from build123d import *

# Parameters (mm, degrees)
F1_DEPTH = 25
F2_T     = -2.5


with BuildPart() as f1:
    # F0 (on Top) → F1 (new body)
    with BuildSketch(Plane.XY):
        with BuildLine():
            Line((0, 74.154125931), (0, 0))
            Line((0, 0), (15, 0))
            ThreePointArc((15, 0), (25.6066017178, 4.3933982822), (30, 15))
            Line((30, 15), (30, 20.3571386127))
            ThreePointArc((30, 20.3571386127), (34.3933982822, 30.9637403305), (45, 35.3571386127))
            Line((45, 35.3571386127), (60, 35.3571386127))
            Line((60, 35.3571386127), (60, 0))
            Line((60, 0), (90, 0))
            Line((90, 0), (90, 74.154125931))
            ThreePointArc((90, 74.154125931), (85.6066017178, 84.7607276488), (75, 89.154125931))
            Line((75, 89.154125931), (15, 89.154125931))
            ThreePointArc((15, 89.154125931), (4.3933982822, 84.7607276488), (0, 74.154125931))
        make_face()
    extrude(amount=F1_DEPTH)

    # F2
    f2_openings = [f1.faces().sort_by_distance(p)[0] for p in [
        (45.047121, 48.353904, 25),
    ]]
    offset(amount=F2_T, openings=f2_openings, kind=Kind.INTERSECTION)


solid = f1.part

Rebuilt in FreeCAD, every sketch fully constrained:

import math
import FreeCAD as App
import Part
import Sketcher
from FreeCAD import Vector
Q = App.Units.Quantity


def faces_at(feature, points):
    """Names of the faces that lie closest to the given points."""
    faces = feature.Shape.Faces
    near = lambda p: min(range(len(faces)), key=lambda i: faces[i].distToShape(Part.Vertex(*p))[0])
    return sorted({f"Face{near(p) + 1}" for p in points})

doc = App.newDocument("Part")
body = doc.addObject("PartDesign::Body", "Body")

# Sketch on XY plane
sketch1 = body.newObject("Sketcher::SketchObject", "Sketch")
sketch1.AttachmentSupport = (doc.getObject("XY_Plane"), [""])
sketch1.MapMode = "FlatFace"
sketch1.addGeometry(Part.LineSegment(Vector(0, 74, 0), Vector(0, 0, 0)), False)
sketch1.addGeometry(Part.LineSegment(Vector(0, 0, 0), Vector(15, 0, 0)), False)
sketch1.addGeometry(Part.ArcOfCircle(Part.Circle(Vector(15, 15, 0), Vector(0, 0, 1), 15), math.radians(-90), math.radians(0)), False)
sketch1.addGeometry(Part.LineSegment(Vector(30, 15, 0), Vector(30, 20, 0)), False)
sketch1.addGeometry(Part.ArcOfCircle(Part.Circle(Vector(45, 20, 0), Vector(0, 0, 1), 15), math.radians(90), math.radians(180)), False)
sketch1.addGeometry(Part.LineSegment(Vector(45, 35, 0), Vector(60, 35, 0)), False)
sketch1.addGeometry(Part.LineSegment(Vector(60, 35, 0), Vector(60, 0, 0)), False)
sketch1.addGeometry(Part.LineSegment(Vector(60, 0, 0), Vector(90, 0, 0)), False)
sketch1.addGeometry(Part.LineSegment(Vector(90, 0, 0), Vector(90, 74, 0)), False)
sketch1.addGeometry(Part.ArcOfCircle(Part.Circle(Vector(75, 74, 0), Vector(0, 0, 1), 15), math.radians(0), math.radians(90)), False)
sketch1.addGeometry(Part.LineSegment(Vector(75, 89, 0), Vector(15, 89, 0)), False)
sketch1.addGeometry(Part.ArcOfCircle(Part.Circle(Vector(15, 74, 0), Vector(0, 0, 1), 15), math.radians(90), math.radians(180)), False)
sketch1.addConstraint(Sketcher.Constraint("Coincident", 0, 2, 1, 1))
sketch1.addConstraint(Sketcher.Constraint("Tangent", 1, 2, 2, 1))
sketch1.addConstraint(Sketcher.Constraint("Tangent", 2, 2, 3, 1))
sketch1.addConstraint(Sketcher.Constraint("Tangent", 3, 2, 4, 2))
sketch1.addConstraint(Sketcher.Constraint("Tangent", 4, 1, 5, 1))
sketch1.addConstraint(Sketcher.Constraint("Coincident", 5, 2, 6, 1))
sketch1.addConstraint(Sketcher.Constraint("Coincident", 6, 2, 7, 1))
sketch1.addConstraint(Sketcher.Constraint("Coincident", 7, 2, 8, 1))
sketch1.addConstraint(Sketcher.Constraint("Tangent", 8, 2, 9, 1))
sketch1.addConstraint(Sketcher.Constraint("Tangent", 9, 2, 10, 1))
sketch1.addConstraint(Sketcher.Constraint("Tangent", 10, 2, 11, 1))
sketch1.addConstraint(Sketcher.Constraint("Tangent", 11, 2, 0, 1))
sketch1.addConstraint(Sketcher.Constraint("Vertical", 0))
sketch1.addConstraint(Sketcher.Constraint("Horizontal", 1))
sketch1.addConstraint(Sketcher.Constraint("Vertical", 3))
sketch1.addConstraint(Sketcher.Constraint("Horizontal", 5))
sketch1.addConstraint(Sketcher.Constraint("Vertical", 6))
sketch1.addConstraint(Sketcher.Constraint("Horizontal", 7))
sketch1.addConstraint(Sketcher.Constraint("Vertical", 8))
sketch1.addConstraint(Sketcher.Constraint("Horizontal", 10))
sketch1.addConstraint(Sketcher.Constraint("Coincident", 0, 2, -1, 1))
sketch1.addConstraint(Sketcher.Constraint("Equal", 2, 4))
sketch1.addConstraint(Sketcher.Constraint("Equal", 4, 9))
sketch1.addConstraint(Sketcher.Constraint("Equal", 9, 11))
sketch1.addConstraint(Sketcher.Constraint("PointOnObject", 6, 2, -1))
sketch1.addConstraint(Sketcher.Constraint("Vertical", 2, 3, 11, 3))
sketch1.addConstraint(Sketcher.Constraint("Equal", 1, 5))
sketch1.addConstraint(Sketcher.Constraint("Radius", 2, Q("15 mm")))
sketch1.addConstraint(Sketcher.Constraint("DistanceX", 7, 1, 7, 2, Q("30 mm")))
sketch1.addConstraint(Sketcher.Constraint("DistanceY", 3, 1, 3, 2, Q("5.357139 mm")))
sketch1.addConstraint(Sketcher.Constraint("DistanceY", 0, 2, 0, 1, Q("74.154126 mm")))
pad1 = body.newObject("PartDesign::Pad", "Pad")
pad1.Profile = sketch1
pad1.Length = 25
doc.recompute()

thickness = body.newObject("PartDesign::Thickness", "Thickness")
thickness.Base = (pad1, faces_at(pad1, [(45, 44.577, 25)]))
thickness.Value = 2.5
thickness.Reversed = True
thickness.Join = "Intersection"

doc.recompute()
